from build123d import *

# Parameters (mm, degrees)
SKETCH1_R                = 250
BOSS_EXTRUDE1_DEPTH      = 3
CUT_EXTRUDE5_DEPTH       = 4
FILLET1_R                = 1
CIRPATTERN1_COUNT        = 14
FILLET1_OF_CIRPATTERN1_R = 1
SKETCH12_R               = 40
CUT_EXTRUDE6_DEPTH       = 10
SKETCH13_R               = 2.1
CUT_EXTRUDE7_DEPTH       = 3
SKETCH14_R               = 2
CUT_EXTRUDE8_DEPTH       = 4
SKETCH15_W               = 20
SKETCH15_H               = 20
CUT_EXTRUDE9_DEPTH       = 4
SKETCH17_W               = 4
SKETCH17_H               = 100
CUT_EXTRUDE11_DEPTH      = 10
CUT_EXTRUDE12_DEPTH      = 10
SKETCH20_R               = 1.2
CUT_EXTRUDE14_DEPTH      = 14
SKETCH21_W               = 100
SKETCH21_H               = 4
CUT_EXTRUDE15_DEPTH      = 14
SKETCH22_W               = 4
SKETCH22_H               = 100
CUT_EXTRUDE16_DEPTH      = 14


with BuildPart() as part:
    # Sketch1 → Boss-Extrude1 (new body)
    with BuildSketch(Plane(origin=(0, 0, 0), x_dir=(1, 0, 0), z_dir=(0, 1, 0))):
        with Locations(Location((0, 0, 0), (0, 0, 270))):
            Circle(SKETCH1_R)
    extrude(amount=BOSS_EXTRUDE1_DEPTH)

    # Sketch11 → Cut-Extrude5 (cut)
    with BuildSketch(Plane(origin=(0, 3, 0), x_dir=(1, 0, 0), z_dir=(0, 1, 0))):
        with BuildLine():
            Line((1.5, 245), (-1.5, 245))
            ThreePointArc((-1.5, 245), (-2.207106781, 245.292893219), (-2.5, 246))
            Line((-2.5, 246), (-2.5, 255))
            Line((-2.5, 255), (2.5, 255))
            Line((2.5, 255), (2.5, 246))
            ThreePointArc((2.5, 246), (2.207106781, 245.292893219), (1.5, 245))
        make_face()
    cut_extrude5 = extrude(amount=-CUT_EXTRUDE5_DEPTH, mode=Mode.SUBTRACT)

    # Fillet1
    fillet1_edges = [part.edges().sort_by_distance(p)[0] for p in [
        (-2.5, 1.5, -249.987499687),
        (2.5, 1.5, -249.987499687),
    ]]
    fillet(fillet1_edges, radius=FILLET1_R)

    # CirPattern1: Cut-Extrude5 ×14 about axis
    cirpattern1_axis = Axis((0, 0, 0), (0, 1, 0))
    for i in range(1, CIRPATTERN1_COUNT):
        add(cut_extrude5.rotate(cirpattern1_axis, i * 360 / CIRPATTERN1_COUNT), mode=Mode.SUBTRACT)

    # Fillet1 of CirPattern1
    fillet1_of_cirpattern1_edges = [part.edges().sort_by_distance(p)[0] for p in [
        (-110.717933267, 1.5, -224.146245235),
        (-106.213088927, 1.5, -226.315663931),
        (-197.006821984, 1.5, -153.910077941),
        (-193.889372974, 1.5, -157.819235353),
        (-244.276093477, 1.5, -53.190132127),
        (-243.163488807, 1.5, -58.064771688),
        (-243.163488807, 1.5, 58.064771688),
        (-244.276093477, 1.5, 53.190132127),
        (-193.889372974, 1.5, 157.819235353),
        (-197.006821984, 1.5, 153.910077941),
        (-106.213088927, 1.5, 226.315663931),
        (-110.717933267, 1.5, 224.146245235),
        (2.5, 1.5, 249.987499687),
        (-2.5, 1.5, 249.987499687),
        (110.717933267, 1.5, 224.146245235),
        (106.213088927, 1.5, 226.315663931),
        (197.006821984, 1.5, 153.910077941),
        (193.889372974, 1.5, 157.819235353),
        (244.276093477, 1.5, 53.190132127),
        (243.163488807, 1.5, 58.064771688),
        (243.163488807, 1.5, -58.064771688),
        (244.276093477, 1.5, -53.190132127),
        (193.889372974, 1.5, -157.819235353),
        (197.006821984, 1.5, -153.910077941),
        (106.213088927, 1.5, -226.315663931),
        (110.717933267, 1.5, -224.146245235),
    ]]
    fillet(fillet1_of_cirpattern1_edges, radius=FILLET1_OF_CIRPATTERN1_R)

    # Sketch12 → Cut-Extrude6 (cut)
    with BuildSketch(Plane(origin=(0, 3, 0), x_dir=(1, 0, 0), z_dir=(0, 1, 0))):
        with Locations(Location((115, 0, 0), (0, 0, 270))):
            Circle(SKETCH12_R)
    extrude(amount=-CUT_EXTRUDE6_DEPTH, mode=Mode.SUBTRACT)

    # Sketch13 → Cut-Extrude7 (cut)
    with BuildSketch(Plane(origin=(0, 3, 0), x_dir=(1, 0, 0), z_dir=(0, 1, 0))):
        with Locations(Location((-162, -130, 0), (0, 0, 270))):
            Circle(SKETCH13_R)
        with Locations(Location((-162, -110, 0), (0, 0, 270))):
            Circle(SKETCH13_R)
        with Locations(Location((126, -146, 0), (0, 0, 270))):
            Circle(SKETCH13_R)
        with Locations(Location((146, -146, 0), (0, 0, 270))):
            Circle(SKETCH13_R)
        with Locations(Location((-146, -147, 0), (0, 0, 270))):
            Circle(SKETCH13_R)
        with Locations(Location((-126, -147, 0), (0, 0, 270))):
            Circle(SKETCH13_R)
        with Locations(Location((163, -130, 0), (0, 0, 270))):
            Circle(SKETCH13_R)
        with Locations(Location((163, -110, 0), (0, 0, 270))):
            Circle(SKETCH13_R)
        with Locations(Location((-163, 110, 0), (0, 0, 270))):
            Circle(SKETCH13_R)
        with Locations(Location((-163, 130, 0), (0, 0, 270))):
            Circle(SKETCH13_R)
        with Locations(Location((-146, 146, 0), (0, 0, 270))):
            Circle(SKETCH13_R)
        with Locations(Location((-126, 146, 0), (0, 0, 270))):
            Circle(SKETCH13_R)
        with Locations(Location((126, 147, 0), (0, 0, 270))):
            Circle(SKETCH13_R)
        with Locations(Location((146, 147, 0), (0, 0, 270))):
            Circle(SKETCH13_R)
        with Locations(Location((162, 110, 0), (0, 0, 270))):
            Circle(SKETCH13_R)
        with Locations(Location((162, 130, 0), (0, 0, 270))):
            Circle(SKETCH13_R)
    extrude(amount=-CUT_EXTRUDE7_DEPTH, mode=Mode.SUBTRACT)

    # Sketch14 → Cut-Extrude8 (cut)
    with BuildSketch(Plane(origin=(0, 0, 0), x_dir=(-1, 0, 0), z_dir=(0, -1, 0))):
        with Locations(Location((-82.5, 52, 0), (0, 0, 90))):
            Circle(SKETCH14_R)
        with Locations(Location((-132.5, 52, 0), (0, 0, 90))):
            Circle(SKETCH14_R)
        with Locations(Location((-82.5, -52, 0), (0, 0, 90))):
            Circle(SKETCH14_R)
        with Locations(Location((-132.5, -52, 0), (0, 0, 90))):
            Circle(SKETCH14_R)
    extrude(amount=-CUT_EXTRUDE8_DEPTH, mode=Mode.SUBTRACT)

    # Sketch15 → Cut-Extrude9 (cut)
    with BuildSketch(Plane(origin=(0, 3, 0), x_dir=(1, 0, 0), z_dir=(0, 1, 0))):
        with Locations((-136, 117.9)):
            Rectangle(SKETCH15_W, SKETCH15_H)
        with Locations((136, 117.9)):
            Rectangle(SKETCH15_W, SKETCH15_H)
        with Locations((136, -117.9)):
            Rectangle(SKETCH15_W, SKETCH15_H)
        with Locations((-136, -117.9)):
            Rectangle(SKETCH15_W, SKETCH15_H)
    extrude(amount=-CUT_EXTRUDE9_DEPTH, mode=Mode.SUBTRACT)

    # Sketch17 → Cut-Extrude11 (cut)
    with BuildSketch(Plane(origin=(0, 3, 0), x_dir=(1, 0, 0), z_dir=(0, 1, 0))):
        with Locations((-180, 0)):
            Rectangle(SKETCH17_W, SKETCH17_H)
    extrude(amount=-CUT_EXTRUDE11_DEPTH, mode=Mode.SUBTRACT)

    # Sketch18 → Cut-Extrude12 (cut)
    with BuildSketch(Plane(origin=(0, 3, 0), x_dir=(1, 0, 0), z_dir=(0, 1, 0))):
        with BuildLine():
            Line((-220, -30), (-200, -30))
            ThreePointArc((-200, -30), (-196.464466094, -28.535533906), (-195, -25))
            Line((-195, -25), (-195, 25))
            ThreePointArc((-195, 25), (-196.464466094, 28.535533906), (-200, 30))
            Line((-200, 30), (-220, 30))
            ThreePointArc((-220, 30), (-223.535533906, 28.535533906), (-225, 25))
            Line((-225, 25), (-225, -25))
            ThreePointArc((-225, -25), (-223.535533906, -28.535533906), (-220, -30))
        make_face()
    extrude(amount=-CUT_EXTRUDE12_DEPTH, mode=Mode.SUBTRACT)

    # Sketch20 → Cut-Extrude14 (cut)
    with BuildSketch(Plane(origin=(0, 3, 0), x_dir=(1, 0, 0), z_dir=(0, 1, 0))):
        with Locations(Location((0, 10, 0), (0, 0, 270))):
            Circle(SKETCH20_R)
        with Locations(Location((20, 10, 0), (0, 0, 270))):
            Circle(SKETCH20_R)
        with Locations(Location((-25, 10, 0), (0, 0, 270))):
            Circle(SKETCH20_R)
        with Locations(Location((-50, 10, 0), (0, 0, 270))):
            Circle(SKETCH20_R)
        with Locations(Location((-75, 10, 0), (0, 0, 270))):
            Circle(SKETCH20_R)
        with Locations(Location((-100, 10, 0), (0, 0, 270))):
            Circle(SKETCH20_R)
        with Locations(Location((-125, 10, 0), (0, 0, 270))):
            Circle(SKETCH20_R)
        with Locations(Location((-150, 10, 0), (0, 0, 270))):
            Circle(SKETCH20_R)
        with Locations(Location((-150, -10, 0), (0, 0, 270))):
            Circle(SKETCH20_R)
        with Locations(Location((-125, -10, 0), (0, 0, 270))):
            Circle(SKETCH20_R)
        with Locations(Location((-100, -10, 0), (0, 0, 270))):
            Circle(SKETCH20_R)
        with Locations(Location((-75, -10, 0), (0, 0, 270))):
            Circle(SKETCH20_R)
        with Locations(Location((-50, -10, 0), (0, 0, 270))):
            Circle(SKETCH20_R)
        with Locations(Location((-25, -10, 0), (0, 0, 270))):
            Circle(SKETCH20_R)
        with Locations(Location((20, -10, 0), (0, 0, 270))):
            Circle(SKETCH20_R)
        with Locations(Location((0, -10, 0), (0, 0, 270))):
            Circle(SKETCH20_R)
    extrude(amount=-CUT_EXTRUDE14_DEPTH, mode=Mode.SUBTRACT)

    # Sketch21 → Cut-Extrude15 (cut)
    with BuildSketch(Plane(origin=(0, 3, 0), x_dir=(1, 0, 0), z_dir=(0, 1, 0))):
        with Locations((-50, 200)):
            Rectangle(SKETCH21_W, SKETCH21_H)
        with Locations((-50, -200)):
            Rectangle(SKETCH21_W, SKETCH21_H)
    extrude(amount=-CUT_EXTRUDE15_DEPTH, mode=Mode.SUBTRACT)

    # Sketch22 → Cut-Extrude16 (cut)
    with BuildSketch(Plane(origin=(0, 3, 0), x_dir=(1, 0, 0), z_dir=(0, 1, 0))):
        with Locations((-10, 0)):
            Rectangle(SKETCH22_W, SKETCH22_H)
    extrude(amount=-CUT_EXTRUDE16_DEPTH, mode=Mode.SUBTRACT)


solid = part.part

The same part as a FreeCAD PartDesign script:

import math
import FreeCAD as App
import Part
import Sketcher
from FreeCAD import Vector
Q = App.Units.Quantity


def edges_at(feature, points):
    """Names of the edges that pass closest to the given points."""
    edges = feature.Shape.Edges
    near = lambda p: min(range(len(edges)), key=lambda i: edges[i].distToShape(Part.Vertex(*p))[0])
    return sorted({f"Edge{near(p) + 1}" for p in points})


def add_polygon(sketch, points):
    """Adds a closed chain of lines whose ends are joined by coincident constraints."""
    first, n = sketch.GeometryCount, len(points)
    for a, b in zip(points, points[1:] + points[:1]):
        sketch.addGeometry(Part.LineSegment(App.Vector(*a, 0), App.Vector(*b, 0)), False)
    for i in range(n):
        sketch.addConstraint(Sketcher.Constraint("Coincident", first + i, 2, first + (i + 1) % n, 1))

doc = App.newDocument("Part")
body = doc.addObject("PartDesign::Body", "Body")

# Sketch on XZ plane
sketch1 = body.newObject("Sketcher::SketchObject", "Sketch")
sketch1.AttachmentSupport = (doc.getObject("XZ_Plane"), [""])
sketch1.MapMode = "FlatFace"
sketch1.addGeometry(Part.Circle(Vector(0, 0, 0), Vector(0, 0, 1), 250), False)
sketch1.addConstraint([
    Sketcher.Constraint("Coincident", 0, 3, -1, 1),
    Sketcher.Constraint("Diameter", 0, Q("500 mm")),
])
pad1 = body.newObject("PartDesign::Pad", "Pad")
pad1.Profile = sketch1
pad1.Length = 3
pad1.Reversed = True

# Sketch on XZ plane
sketch2 = body.newObject("Sketcher::SketchObject", "Sketch001")
sketch2.AttachmentSupport = (doc.getObject("XZ_Plane"), [""])
sketch2.MapMode = "FlatFace"
sketch2.AttachmentOffset = App.Placement(Vector(0, 0, -3), App.Rotation())
sketch2.addGeometry([
    Part.LineSegment(Vector(-1.5, -245, 0), Vector(1.5, -245, 0)),  # 0
    Part.ArcOfCircle(Part.Circle(Vector(1.5, -246, 0), Vector(0, 0, 1), 1), math.radians(0), math.radians(90)),  # 1
    Part.LineSegment(Vector(2.5, -246, 0), Vector(2.5, -255, 0)),  # 2
    Part.LineSegment(Vector(2.5, -255, 0), Vector(-2.5, -255, 0)),  # 3
    Part.LineSegment(Vector(-2.5, -255, 0), Vector(-2.5, -246, 0)),  # 4
    Part.ArcOfCircle(Part.Circle(Vector(-1.5, -246, 0), Vector(0, 0, 1), 1), math.radians(90), math.radians(180)),  # 5
], False)
sketch2.addConstraint([
    Sketcher.Constraint("Tangent", 0, 2, 1, 2),
    Sketcher.Constraint("Tangent", 1, 1, 2, 1),
    Sketcher.Constraint("Coincident", 2, 2, 3, 1),
    Sketcher.Constraint("Coincident", 3, 2, 4, 1),
    Sketcher.Constraint("Tangent", 4, 2, 5, 2),
    Sketcher.Constraint("Tangent", 5, 1, 0, 1),
    Sketcher.Constraint("Horizontal", 0),
    Sketcher.Constraint("Vertical", 2),
    Sketcher.Constraint("Horizontal", 3),
    Sketcher.Constraint("Vertical", 4),
    Sketcher.Constraint("Equal", 1, 5),
    Sketcher.Constraint("Radius", 1, Q("1 mm")),
    Sketcher.Constraint("DistanceX", 0, 1, 0, 2, Q("3 mm")),
    Sketcher.Constraint("DistanceY", 2, 2, 2, 1, Q("9 mm")),
    Sketcher.Constraint("DistanceY", 1, 3, -1, 1, Q("246 mm")),
    Sketcher.Constraint("DistanceX", -1, 1, 1, 3, Q("1.5 mm")),
])
pocket1 = body.newObject("PartDesign::Pocket", "Pocket")
pocket1.Profile = sketch2
pocket1.Length = 4
pocket1.Reversed = True
doc.recompute()

fillet = body.newObject("PartDesign::Fillet", "Fillet")
fillet.Base = (pocket1, edges_at(pocket1, [(-2.5, 1.5, -249.987), (2.5, 1.5, -249.987)]))
fillet.Radius = 1
doc.recompute()

polarpattern = body.newObject("PartDesign::PolarPattern", "PolarPattern")
polarpattern.Originals = [pocket1]
polarpattern.Axis = (doc.getObject("Y_Axis"), [""])
polarpattern.Angle = 360
polarpattern.Occurrences = 14
body.Tip = polarpattern
doc.recompute()

fillet2 = body.newObject("PartDesign::Fillet", "Fillet001")
fillet2.Base = (polarpattern, edges_at(polarpattern, [
    (-110.718, 1.5, -224.146),
    (-106.213, 1.5, -226.316),
    (-197.007, 1.5, -153.91),
    (-193.889, 1.5, -157.819),
    (-244.276, 1.5, -53.19),
    (-243.163, 1.5, -58.065),
    (-243.163, 1.5, 58.065),
    (-244.276, 1.5, 53.19),
    (-193.889, 1.5, 157.819),
    (-197.007, 1.5, 153.91),
    (-106.213, 1.5, 226.316),
    (-110.718, 1.5, 224.146),
    (2.5, 1.5, 249.987),
    (-2.5, 1.5, 249.987),
    (110.718, 1.5, 224.146),
    (106.213, 1.5, 226.316),
    (197.007, 1.5, 153.91),
    (193.889, 1.5, 157.819),
    (244.276, 1.5, 53.19),
    (243.163, 1.5, 58.065),
    (243.163, 1.5, -58.065),
    (244.276, 1.5, -53.19),
    (193.889, 1.5, -157.819),
    (197.007, 1.5, -153.91),
    (106.213, 1.5, -226.316),
    (110.718, 1.5, -224.146),
]))
fillet2.Radius = 1

# Sketch on XZ plane
sketch3 = body.newObject("Sketcher::SketchObject", "Sketch002")
sketch3.AttachmentSupport = (doc.getObject("XZ_Plane"), [""])
sketch3.MapMode = "FlatFace"
sketch3.AttachmentOffset = App.Placement(Vector(0, 0, -3), App.Rotation())
sketch3.addGeometry(Part.Circle(Vector(115, 0, 0), Vector(0, 0, 1), 40), False)
sketch3.addConstraint([
    Sketcher.Constraint("PointOnObject", 0, 3, -1),
    Sketcher.Constraint("Diameter", 0, Q("80 mm")),
    Sketcher.Constraint("DistanceX", -1, 1, 0, 3, Q("115 mm")),
])
pocket2 = body.newObject("PartDesign::Pocket", "Pocket001")
pocket2.Profile = sketch3
pocket2.Length = 10
pocket2.Reversed = True

# Sketch on XZ plane
sketch4 = body.newObject("Sketcher::SketchObject", "Sketch003")
sketch4.AttachmentSupport = (doc.getObject("XZ_Plane"), [""])
sketch4.MapMode = "FlatFace"
sketch4.AttachmentOffset = App.Placement(Vector(0, 0, -3), App.Rotation())
sketch4.addGeometry([
    Part.Circle(Vector(-162, 130, 0), Vector(0, 0, 1), 2.1),  # 0
    Part.Circle(Vector(-162, 110, 0), Vector(0, 0, 1), 2.1),  # 1
    Part.Circle(Vector(126, 146, 0), Vector(0, 0, 1), 2.1),  # 2
    Part.Circle(Vector(146, 146, 0), Vector(0, 0, 1), 2.1),  # 3
    Part.Circle(Vector(-146, 147, 0), Vector(0, 0, 1), 2.1),  # 4
    Part.Circle(Vector(-126, 147, 0), Vector(0, 0, 1), 2.1),  # 5
    Part.Circle(Vector(163, 130, 0), Vector(0, 0, 1), 2.1),  # 6
    Part.Circle(Vector(163, 110, 0), Vector(0, 0, 1), 2.1),  # 7
    Part.Circle(Vector(-163, -110, 0), Vector(0, 0, 1), 2.1),  # 8
    Part.Circle(Vector(-163, -130, 0), Vector(0, 0, 1), 2.1),  # 9
    Part.Circle(Vector(-146, -146, 0), Vector(0, 0, 1), 2.1),  # 10
    Part.Circle(Vector(-126, -146, 0), Vector(0, 0, 1), 2.1),  # 11
    Part.Circle(Vector(126, -147, 0), Vector(0, 0, 1), 2.1),  # 12
    Part.Circle(Vector(146, -147, 0), Vector(0, 0, 1), 2.1),  # 13
    Part.Circle(Vector(162, -110, 0), Vector(0, 0, 1), 2.1),  # 14
    Part.Circle(Vector(162, -130, 0), Vector(0, 0, 1), 2.1),  # 15
], False)
sketch4.addConstraint([
    Sketcher.Constraint("Equal", 0, 1),
    Sketcher.Constraint("Equal", 1, 2),
    Sketcher.Constraint("Equal", 2, 3),
    Sketcher.Constraint("Equal", 3, 4),
    Sketcher.Constraint("Equal", 4, 5),
    Sketcher.Constraint("Equal", 5, 6),
    Sketcher.Constraint("Equal", 6, 7),
    Sketcher.Constraint("Equal", 7, 8),
    Sketcher.Constraint("Equal", 8, 9),
    Sketcher.Constraint("Equal", 9, 10),
    Sketcher.Constraint("Equal", 10, 11),
    Sketcher.Constraint("Equal", 11, 12),
    Sketcher.Constraint("Equal", 12, 13),
    Sketcher.Constraint("Equal", 13, 14),
    Sketcher.Constraint("Equal", 14, 15),
    Sketcher.Constraint("Symmetric", 7, 3, 8, 3, -1, 1),
    Sketcher.Constraint("Symmetric", 6, 3, 9, 3, -1, 1),
    Sketcher.Constraint("Symmetric", 3, 3, 10, 3, -1, 1),
    Sketcher.Constraint("Symmetric", 2, 3, 11, 3, -1, 1),
    Sketcher.Constraint("Symmetric", 5, 3, 12, 3, -1, 1),
    Sketcher.Constraint("Symmetric", 4, 3, 13, 3, -1, 1),
    Sketcher.Constraint("Symmetric", 1, 3, 14, 3, -1, 1),
    Sketcher.Constraint("Symmetric", 0, 3, 15, 3, -1, 1),
    Sketcher.Constraint("Horizontal", 2, 3, 3, 3),
    Sketcher.Constraint("Horizontal", 4, 3, 5, 3),
    Sketcher.Constraint("Horizontal", 0, 3, 6, 3),
    Sketcher.Constraint("Horizontal", 1, 3, 7, 3),
    Sketcher.Constraint("Vertical", 0, 3, 1, 3),
    Sketcher.Constraint("Vertical", 6, 3, 7, 3),
    Sketcher.Constraint("Vertical", 4, 3, 10, 3),
    Sketcher.Constraint("Vertical", 5, 3, 11, 3),
    Sketcher.Constraint("Diameter", 0, Q("4.2 mm")),
    Sketcher.Constraint("DistanceX", 0, 3, -1, 1, Q("162 mm")),
    Sketcher.Constraint("DistanceY", -1, 1, 0, 3, Q("130 mm")),
    Sketcher.Constraint("DistanceY", -1, 1, 1, 3, Q("110 mm")),
    Sketcher.Constraint("DistanceX", -1, 1, 2, 3, Q("126 mm")),
    Sketcher.Constraint("DistanceY", -1, 1, 2, 3, Q("146 mm")),
    Sketcher.Constraint("DistanceX", -1, 1, 3, 3, Q("146 mm")),
    Sketcher.Constraint("DistanceY", -1, 1, 4, 3, Q("147 mm")),
    Sketcher.Constraint("DistanceX", -1, 1, 6, 3, Q("163 mm")),
])
pocket3 = body.newObject("PartDesign::Pocket", "Pocket002")
pocket3.Profile = sketch4
pocket3.Length = 3
pocket3.Reversed = True

# Sketch on XZ plane
sketch5 = body.newObject("Sketcher::SketchObject", "Sketch004")
sketch5.AttachmentSupport = (doc.getObject("XZ_Plane"), [""])
sketch5.MapMode = "FlatFace"
sketch5.addGeometry([
    Part.Circle(Vector(82.5, -52, 0), Vector(0, 0, 1), 2),
    Part.Circle(Vector(132.5, -52, 0), Vector(0, 0, 1), 2),
    Part.Circle(Vector(82.5, 52, 0), Vector(0, 0, 1), 2),
    Part.Circle(Vector(132.5, 52, 0), Vector(0, 0, 1), 2),
], False)
sketch5.addConstraint([
    Sketcher.Constraint("Equal", 0, 1),
    Sketcher.Constraint("Equal", 1, 2),
    Sketcher.Constraint("Equal", 2, 3),
    Sketcher.Constraint("Symmetric", 0, 3, 2, 3, -1),
    Sketcher.Constraint("Symmetric", 1, 3, 3, 3, -1),
    Sketcher.Constraint("Horizontal", 0, 3, 1, 3),
    Sketcher.Constraint("Diameter", 0, Q("4 mm")),
    Sketcher.Constraint("DistanceY", 0, 3, -1, 1, Q("52 mm")),
    Sketcher.Constraint("DistanceX", 0, 3, 1, 3, Q("50 mm")),
    Sketcher.Constraint("DistanceX", -1, 1, 0, 3, Q("82.5 mm")),
])
pocket4 = body.newObject("PartDesign::Pocket", "Pocket003")
pocket4.Profile = sketch5
pocket4.Length = 4

# Sketch on XZ plane
sketch6 = body.newObject("Sketcher::SketchObject", "Sketch005")
sketch6.AttachmentSupport = (doc.getObject("XZ_Plane"), [""])
sketch6.MapMode = "FlatFace"
sketch6.AttachmentOffset = App.Placement(Vector(0, 0, -3), App.Rotation())
add_polygon(sketch6, [(-146, -128), (-146, -108), (-126, -108), (-126, -128)])  # lines 0-3
add_polygon(sketch6, [(126, -128), (126, -108), (146, -108), (146, -128)])  # lines 4-7
add_polygon(sketch6, [(126, 108), (126, 128), (146, 128), (146, 108)])  # lines 8-11
add_polygon(sketch6, [(-146, 108), (-146, 128), (-126, 128), (-126, 108)])  # lines 12-15
sketch6.addConstraint([
    Sketcher.Constraint("Vertical", 0),
    Sketcher.Constraint("Horizontal", 1),
    Sketcher.Constraint("Vertical", 2),
    Sketcher.Constraint("Horizontal", 3),
    Sketcher.Constraint("Vertical", 4),
    Sketcher.Constraint("Horizontal", 5),
    Sketcher.Constraint("Vertical", 6),
    Sketcher.Constraint("Horizontal", 7),
    Sketcher.Constraint("Vertical", 8),
    Sketcher.Constraint("Horizontal", 9),
    Sketcher.Constraint("Vertical", 10),
    Sketcher.Constraint("Horizontal", 11),
    Sketcher.Constraint("Vertical", 12),
    Sketcher.Constraint("Horizontal", 13),
    Sketcher.Constraint("Vertical", 14),
    Sketcher.Constraint("Horizontal", 15),
    Sketcher.Constraint("Symmetric", 2, 2, 8, 2, -1, 1),
    Sketcher.Constraint("Symmetric", 0, 2, 10, 2, -1, 1),
    Sketcher.Constraint("Symmetric", 6, 2, 12, 2, -1, 1),
    Sketcher.Constraint("Symmetric", 4, 2, 14, 2, -1, 1),
    Sketcher.Constraint("Symmetric", 1, 2, 4, 2, -2),
    Sketcher.Constraint("Symmetric", 3, 2, 6, 2, -2),
    Sketcher.Constraint("Equal", 15, 0),
    Sketcher.Constraint("DistanceX", 1, 1, 1, 2, Q("20 mm")),
    Sketcher.Constraint("DistanceX", 0, 2, -1, 1, Q("146 mm")),
    Sketcher.Constraint("DistanceY", 0, 2, -1, 1, Q("107.9 mm")),
])
pocket5 = body.newObject("PartDesign::Pocket", "Pocket004")
pocket5.Profile = sketch6
pocket5.Length = 4
pocket5.Reversed = True

# Sketch on XZ plane
sketch7 = body.newObject("Sketcher::SketchObject", "Sketch006")
sketch7.AttachmentSupport = (doc.getObject("XZ_Plane"), [""])
sketch7.MapMode = "FlatFace"
sketch7.AttachmentOffset = App.Placement(Vector(0, 0, -3), App.Rotation())
add_polygon(sketch7, [(-182, -50), (-182, 50), (-178, 50), (-178, -50)])  # lines 0-3
sketch7.addConstraint([
    Sketcher.Constraint("Vertical", 0),
    Sketcher.Constraint("Horizontal", 1),
    Sketcher.Constraint("Vertical", 2),
    Sketcher.Constraint("Horizontal", 3),
    Sketcher.Constraint("DistanceX", 1, 1, 1, 2, Q("4 mm")),
    Sketcher.Constraint("DistanceY", 0, 1, 0, 2, Q("100 mm")),
    Sketcher.Constraint("DistanceX", 0, 2, -1, 1, Q("182 mm")),
    Sketcher.Constraint("DistanceY", -1, 1, 0, 2, Q("50 mm")),
])
pocket6 = body.newObject("PartDesign::Pocket", "Pocket005")
pocket6.Profile = sketch7
pocket6.Length = 10
pocket6.Reversed = True

# Sketch on XZ plane
sketch8 = body.newObject("Sketcher::SketchObject", "Sketch007")
sketch8.AttachmentSupport = (doc.getObject("XZ_Plane"), [""])
sketch8.MapMode = "FlatFace"
sketch8.AttachmentOffset = App.Placement(Vector(0, 0, -3), App.Rotation())
sketch8.addGeometry([
    Part.LineSegment(Vector(-220, 30, 0), Vector(-200, 30, 0)),  # 0
    Part.ArcOfCircle(Part.Circle(Vector(-200, 25, 0), Vector(0, 0, 1), 5), math.radians(0), math.radians(90)),  # 1
    Part.LineSegment(Vector(-195, 25, 0), Vector(-195, -25, 0)),  # 2
    Part.ArcOfCircle(Part.Circle(Vector(-200, -25, 0), Vector(0, 0, 1), 5), math.radians(-90), math.radians(0)),  # 3
    Part.LineSegment(Vector(-200, -30, 0), Vector(-220, -30, 0)),  # 4
    Part.ArcOfCircle(Part.Circle(Vector(-220, -25, 0), Vector(0, 0, 1), 5), math.radians(180), math.radians(270)),  # 5
    Part.LineSegment(Vector(-225, -25, 0), Vector(-225, 25, 0)),  # 6
    Part.ArcOfCircle(Part.Circle(Vector(-220, 25, 0), Vector(0, 0, 1), 5), math.radians(90), math.radians(180)),  # 7
], False)
sketch8.addConstraint([
    Sketcher.Constraint("Tangent", 0, 2, 1, 2),
    Sketcher.Constraint("Tangent", 1, 1, 2, 1),
    Sketcher.Constraint("Tangent", 2, 2, 3, 2),
    Sketcher.Constraint("Tangent", 3, 1, 4, 1),
    Sketcher.Constraint("Tangent", 4, 2, 5, 2),
    Sketcher.Constraint("Tangent", 5, 1, 6, 1),
    Sketcher.Constraint("Tangent", 6, 2, 7, 2),
    Sketcher.Constraint("Tangent", 7, 1, 0, 1),
    Sketcher.Constraint("Horizontal", 0),
    Sketcher.Constraint("Vertical", 2),
    Sketcher.Constraint("Horizontal", 4),
    Sketcher.Constraint("Vertical", 6),
    Sketcher.Constraint("Equal", 1, 3),
    Sketcher.Constraint("Equal", 3, 5),
    Sketcher.Constraint("Equal", 5, 7),
    Sketcher.Constraint("Radius", 1, Q("5 mm")),
    Sketcher.Constraint("DistanceX", 0, 1, 0, 2, Q("20 mm")),
    Sketcher.Constraint("DistanceY", 2, 2, 2, 1, Q("50 mm")),
    Sketcher.Constraint("DistanceX", 1, 3, -1, 1, Q("200 mm")),
    Sketcher.Constraint("DistanceY", -1, 1, 1, 3, Q("25 mm")),
])
pocket7 = body.newObject("PartDesign::Pocket", "Pocket006")
pocket7.Profile = sketch8
pocket7.Length = 10
pocket7.Reversed = True

# Sketch on XZ plane
sketch9 = body.newObject("Sketcher::SketchObject", "Sketch008")
sketch9.AttachmentSupport = (doc.getObject("XZ_Plane"), [""])
sketch9.MapMode = "FlatFace"
sketch9.AttachmentOffset = App.Placement(Vector(0, 0, -3), App.Rotation())
sketch9.addGeometry([
    Part.Circle(Vector(0, -10, 0), Vector(0, 0, 1), 1.2),  # 0
    Part.Circle(Vector(20, -10, 0), Vector(0, 0, 1), 1.2),  # 1
    Part.Circle(Vector(-25, -10, 0), Vector(0, 0, 1), 1.2),  # 2
    Part.Circle(Vector(-50, -10, 0), Vector(0, 0, 1), 1.2),  # 3
    Part.Circle(Vector(-75, -10, 0), Vector(0, 0, 1), 1.2),  # 4
    Part.Circle(Vector(-100, -10, 0), Vector(0, 0, 1), 1.2),  # 5
    Part.Circle(Vector(-125, -10, 0), Vector(0, 0, 1), 1.2),  # 6
    Part.Circle(Vector(-150, -10, 0), Vector(0, 0, 1), 1.2),  # 7
    Part.Circle(Vector(-150, 10, 0), Vector(0, 0, 1), 1.2),  # 8
    Part.Circle(Vector(-125, 10, 0), Vector(0, 0, 1), 1.2),  # 9
    Part.Circle(Vector(-100, 10, 0), Vector(0, 0, 1), 1.2),  # 10
    Part.Circle(Vector(-75, 10, 0), Vector(0, 0, 1), 1.2),  # 11
    Part.Circle(Vector(-50, 10, 0), Vector(0, 0, 1), 1.2),  # 12
    Part.Circle(Vector(-25, 10, 0), Vector(0, 0, 1), 1.2),  # 13
    Part.Circle(Vector(20, 10, 0), Vector(0, 0, 1), 1.2),  # 14
    Part.Circle(Vector(0, 10, 0), Vector(0, 0, 1), 1.2),  # 15
], False)
sketch9.addConstraint([
    Sketcher.Constraint("Equal", 0, 1),
    Sketcher.Constraint("Equal", 1, 2),
    Sketcher.Constraint("Equal", 2, 3),
    Sketcher.Constraint("Equal", 3, 4),
    Sketcher.Constraint("Equal", 4, 5),
    Sketcher.Constraint("Equal", 5, 6),
    Sketcher.Constraint("Equal", 6, 7),
    Sketcher.Constraint("Equal", 7, 8),
    Sketcher.Constraint("Equal", 8, 9),
    Sketcher.Constraint("Equal", 9, 10),
    Sketcher.Constraint("Equal", 10, 11),
    Sketcher.Constraint("Equal", 11, 12),
    Sketcher.Constraint("Equal", 12, 13),
    Sketcher.Constraint("Equal", 13, 14),
    Sketcher.Constraint("Equal", 14, 15),
    Sketcher.Constraint("Symmetric", 0, 3, 15, 3, -1, 1),
    Sketcher.Constraint("Symmetric", 7, 3, 8, 3, -1),
    Sketcher.Constraint("Symmetric", 6, 3, 9, 3, -1),
    Sketcher.Constraint("Symmetric", 5, 3, 10, 3, -1),
    Sketcher.Constraint("Symmetric", 4, 3, 11, 3, -1),
    Sketcher.Constraint("Symmetric", 3, 3, 12, 3, -1),
    Sketcher.Constraint("Symmetric", 2, 3, 13, 3, -1),
    Sketcher.Constraint("Symmetric", 1, 3, 14, 3, -1),
    Sketcher.Constraint("PointOnObject", 0, 3, -2),
    Sketcher.Constraint("Horizontal", 0, 3, 1, 3),
    Sketcher.Constraint("Horizontal", 1, 3, 2, 3),
    Sketcher.Constraint("Horizontal", 2, 3, 3, 3),
    Sketcher.Constraint("Horizontal", 3, 3, 4, 3),
    Sketcher.Constraint("Horizontal", 4, 3, 5, 3),
    Sketcher.Constraint("Horizontal", 5, 3, 6, 3),
    Sketcher.Constraint("Horizontal", 6, 3, 7, 3),
    Sketcher.Constraint("Diameter", 0, Q("2.4 mm")),
    Sketcher.Constraint("DistanceY", 0, 3, -1, 1, Q("10 mm")),
    Sketcher.Constraint("DistanceX", -1, 1, 1, 3, Q("20 mm")),
    Sketcher.Constraint("DistanceX", 2, 3, -1, 1, Q("25 mm")),
    Sketcher.Constraint("DistanceX", 3, 3, -1, 1, Q("50 mm")),
    Sketcher.Constraint("DistanceX", 4, 3, -1, 1, Q("75 mm")),
    Sketcher.Constraint("DistanceX", 5, 3, -1, 1, Q("100 mm")),
    Sketcher.Constraint("DistanceX", 6, 3, -1, 1, Q("125 mm")),
    Sketcher.Constraint("DistanceX", 7, 3, -1, 1, Q("150 mm")),
])
pocket8 = body.newObject("PartDesign::Pocket", "Pocket007")
pocket8.Profile = sketch9
pocket8.Length = 14
pocket8.Reversed = True

# Sketch on XZ plane
sketch10 = body.newObject("Sketcher::SketchObject", "Sketch009")
sketch10.AttachmentSupport = (doc.getObject("XZ_Plane"), [""])
sketch10.MapMode = "FlatFace"
sketch10.AttachmentOffset = App.Placement(Vector(0, 0, -3), App.Rotation())
add_polygon(sketch10, [(-100, -202), (-100, -198), (0, -198), (0, -202)])  # lines 0-3
add_polygon(sketch10, [(-100, 198), (-100, 202), (0, 202), (0, 198)])  # lines 4-7
sketch10.addConstraint([
    Sketcher.Constraint("Vertical", 0),
    Sketcher.Constraint("Horizontal", 1),
    Sketcher.Constraint("Vertical", 2),
    Sketcher.Constraint("Horizontal", 3),
    Sketcher.Constraint("Vertical", 4),
    Sketcher.Constraint("Horizontal", 5),
    Sketcher.Constraint("Vertical", 6),
    Sketcher.Constraint("Horizontal", 7),
    Sketcher.Constraint("Symmetric", 2, 2, 5, 2, -1, 1),
    Sketcher.Constraint("Symmetric", 1, 2, 6, 2, -1),
    Sketcher.Constraint("Vertical", 3, 2, 4, 2),
    Sketcher.Constraint("DistanceX", 1, 1, 1, 2, Q("100 mm")),
    Sketcher.Constraint("DistanceY", 0, 1, 0, 2, Q("4 mm")),
    Sketcher.Constraint("DistanceY", 0, 2, -1, 1, Q("198 mm")),
])
pocket9 = body.newObject("PartDesign::Pocket", "Pocket008")
pocket9.Profile = sketch10
pocket9.Length = 14
pocket9.Reversed = True

# Sketch on XZ plane
sketch11 = body.newObject("Sketcher::SketchObject", "Sketch010")
sketch11.AttachmentSupport = (doc.getObject("XZ_Plane"), [""])
sketch11.MapMode = "FlatFace"
sketch11.AttachmentOffset = App.Placement(Vector(0, 0, -3), App.Rotation())
add_polygon(sketch11, [(-12, -50), (-12, 50), (-8, 50), (-8, -50)])  # lines 0-3
sketch11.addConstraint([
    Sketcher.Constraint("Vertical", 0),
    Sketcher.Constraint("Horizontal", 1),
    Sketcher.Constraint("Vertical", 2),
    Sketcher.Constraint("Horizontal", 3),
    Sketcher.Constraint("DistanceX", 1, 1, 1, 2, Q("4 mm")),
    Sketcher.Constraint("DistanceY", 0, 1, 0, 2, Q("100 mm")),
    Sketcher.Constraint("DistanceX", 0, 2, -1, 1, Q("12 mm")),
    Sketcher.Constraint("DistanceY", -1, 1, 0, 2, Q("50 mm")),
])
pocket10 = body.newObject("PartDesign::Pocket", "Pocket009")
pocket10.Profile = sketch11
pocket10.Length = 14
pocket10.Reversed = True

doc.recompute()
